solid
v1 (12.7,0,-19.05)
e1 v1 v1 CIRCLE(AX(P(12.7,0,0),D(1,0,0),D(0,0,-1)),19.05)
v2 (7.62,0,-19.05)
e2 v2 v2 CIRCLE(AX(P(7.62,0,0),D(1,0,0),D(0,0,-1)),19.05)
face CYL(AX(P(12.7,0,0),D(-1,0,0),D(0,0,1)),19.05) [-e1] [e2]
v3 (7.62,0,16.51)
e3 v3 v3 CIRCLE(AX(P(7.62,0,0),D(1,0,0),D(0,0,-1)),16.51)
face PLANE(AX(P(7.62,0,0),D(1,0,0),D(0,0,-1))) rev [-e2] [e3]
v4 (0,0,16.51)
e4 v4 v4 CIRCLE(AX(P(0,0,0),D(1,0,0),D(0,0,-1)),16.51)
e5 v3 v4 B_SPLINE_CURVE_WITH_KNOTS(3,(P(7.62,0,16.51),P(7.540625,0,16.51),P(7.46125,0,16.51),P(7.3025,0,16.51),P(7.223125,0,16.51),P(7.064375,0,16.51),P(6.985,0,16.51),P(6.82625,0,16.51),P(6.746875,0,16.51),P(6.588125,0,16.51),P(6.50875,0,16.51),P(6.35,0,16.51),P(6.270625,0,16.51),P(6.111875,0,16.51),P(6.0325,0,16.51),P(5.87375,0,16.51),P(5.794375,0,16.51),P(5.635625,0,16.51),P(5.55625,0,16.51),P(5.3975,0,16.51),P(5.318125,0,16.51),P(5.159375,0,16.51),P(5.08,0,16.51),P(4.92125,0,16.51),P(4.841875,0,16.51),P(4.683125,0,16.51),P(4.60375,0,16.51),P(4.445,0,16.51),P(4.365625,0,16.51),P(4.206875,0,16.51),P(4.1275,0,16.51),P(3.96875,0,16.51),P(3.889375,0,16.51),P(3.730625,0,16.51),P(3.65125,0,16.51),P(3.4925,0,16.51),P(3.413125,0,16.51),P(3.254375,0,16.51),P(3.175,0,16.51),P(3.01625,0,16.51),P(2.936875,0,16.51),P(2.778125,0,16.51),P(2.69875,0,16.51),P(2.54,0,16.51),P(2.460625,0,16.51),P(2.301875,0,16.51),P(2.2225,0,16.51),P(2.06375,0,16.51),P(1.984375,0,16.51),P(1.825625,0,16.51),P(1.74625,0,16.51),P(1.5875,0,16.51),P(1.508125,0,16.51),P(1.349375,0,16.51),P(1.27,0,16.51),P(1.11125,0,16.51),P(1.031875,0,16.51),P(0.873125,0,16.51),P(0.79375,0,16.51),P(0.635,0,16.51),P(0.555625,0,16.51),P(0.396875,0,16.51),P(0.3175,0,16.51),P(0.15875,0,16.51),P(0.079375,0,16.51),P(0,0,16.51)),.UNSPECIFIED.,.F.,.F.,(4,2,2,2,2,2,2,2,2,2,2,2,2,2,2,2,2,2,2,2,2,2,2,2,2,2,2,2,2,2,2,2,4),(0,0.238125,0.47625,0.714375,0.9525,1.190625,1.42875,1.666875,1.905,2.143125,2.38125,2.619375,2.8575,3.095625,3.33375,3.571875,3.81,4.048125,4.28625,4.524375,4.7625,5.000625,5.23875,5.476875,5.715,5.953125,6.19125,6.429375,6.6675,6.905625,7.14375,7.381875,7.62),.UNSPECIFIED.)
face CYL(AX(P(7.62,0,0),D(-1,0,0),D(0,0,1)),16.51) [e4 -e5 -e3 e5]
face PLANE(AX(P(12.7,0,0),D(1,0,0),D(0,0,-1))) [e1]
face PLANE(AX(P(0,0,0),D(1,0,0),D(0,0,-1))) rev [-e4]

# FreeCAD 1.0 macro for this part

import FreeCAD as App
import Part
import Sketcher

V = App.Vector
Q = App.Units.Quantity

doc = App.newDocument("Part")
body = doc.addObject("PartDesign::Body", "Body")

# Sketch on YZ plane
sketch1 = body.newObject("Sketcher::SketchObject", "Sketch")
sketch1.AttachmentSupport = (doc.getObject("YZ_Plane"), [""])
sketch1.MapMode = "FlatFace"
sketch1.addGeometry(Part.Circle(V(0, 0, 0), V(0, 0, 1), 17), False)
sketch1.addConstraint(Sketcher.Constraint("Coincident", 0, 3, -1, 1))
sketch1.addConstraint(Sketcher.Constraint("Diameter", 0, Q("1.3 in")))
pad1 = body.newObject("PartDesign::Pad", "Pad")
pad1.Profile = sketch1
pad1.Length = Q("0.3 in")

# Sketch on YZ plane
sketch2 = body.newObject("Sketcher::SketchObject", "Sketch001")
sketch2.AttachmentSupport = (doc.getObject("YZ_Plane"), [""])
sketch2.MapMode = "FlatFace"
sketch2.AttachmentOffset = App.Placement(V(0, 0, 0.3 * 25.4), App.Rotation())
sketch2.addGeometry(Part.Circle(V(0, 0, 0), V(0, 0, 1), 19), False)
sketch2.addConstraint(Sketcher.Constraint("Coincident", 0, 3, -1, 1))
sketch2.addConstraint(Sketcher.Constraint("Diameter", 0, Q("1.5 in")))
pad2 = body.newObject("PartDesign::Pad", "Pad001")
pad2.Profile = sketch2
pad2.Length = Q("0.2 in")

doc.recompute()
